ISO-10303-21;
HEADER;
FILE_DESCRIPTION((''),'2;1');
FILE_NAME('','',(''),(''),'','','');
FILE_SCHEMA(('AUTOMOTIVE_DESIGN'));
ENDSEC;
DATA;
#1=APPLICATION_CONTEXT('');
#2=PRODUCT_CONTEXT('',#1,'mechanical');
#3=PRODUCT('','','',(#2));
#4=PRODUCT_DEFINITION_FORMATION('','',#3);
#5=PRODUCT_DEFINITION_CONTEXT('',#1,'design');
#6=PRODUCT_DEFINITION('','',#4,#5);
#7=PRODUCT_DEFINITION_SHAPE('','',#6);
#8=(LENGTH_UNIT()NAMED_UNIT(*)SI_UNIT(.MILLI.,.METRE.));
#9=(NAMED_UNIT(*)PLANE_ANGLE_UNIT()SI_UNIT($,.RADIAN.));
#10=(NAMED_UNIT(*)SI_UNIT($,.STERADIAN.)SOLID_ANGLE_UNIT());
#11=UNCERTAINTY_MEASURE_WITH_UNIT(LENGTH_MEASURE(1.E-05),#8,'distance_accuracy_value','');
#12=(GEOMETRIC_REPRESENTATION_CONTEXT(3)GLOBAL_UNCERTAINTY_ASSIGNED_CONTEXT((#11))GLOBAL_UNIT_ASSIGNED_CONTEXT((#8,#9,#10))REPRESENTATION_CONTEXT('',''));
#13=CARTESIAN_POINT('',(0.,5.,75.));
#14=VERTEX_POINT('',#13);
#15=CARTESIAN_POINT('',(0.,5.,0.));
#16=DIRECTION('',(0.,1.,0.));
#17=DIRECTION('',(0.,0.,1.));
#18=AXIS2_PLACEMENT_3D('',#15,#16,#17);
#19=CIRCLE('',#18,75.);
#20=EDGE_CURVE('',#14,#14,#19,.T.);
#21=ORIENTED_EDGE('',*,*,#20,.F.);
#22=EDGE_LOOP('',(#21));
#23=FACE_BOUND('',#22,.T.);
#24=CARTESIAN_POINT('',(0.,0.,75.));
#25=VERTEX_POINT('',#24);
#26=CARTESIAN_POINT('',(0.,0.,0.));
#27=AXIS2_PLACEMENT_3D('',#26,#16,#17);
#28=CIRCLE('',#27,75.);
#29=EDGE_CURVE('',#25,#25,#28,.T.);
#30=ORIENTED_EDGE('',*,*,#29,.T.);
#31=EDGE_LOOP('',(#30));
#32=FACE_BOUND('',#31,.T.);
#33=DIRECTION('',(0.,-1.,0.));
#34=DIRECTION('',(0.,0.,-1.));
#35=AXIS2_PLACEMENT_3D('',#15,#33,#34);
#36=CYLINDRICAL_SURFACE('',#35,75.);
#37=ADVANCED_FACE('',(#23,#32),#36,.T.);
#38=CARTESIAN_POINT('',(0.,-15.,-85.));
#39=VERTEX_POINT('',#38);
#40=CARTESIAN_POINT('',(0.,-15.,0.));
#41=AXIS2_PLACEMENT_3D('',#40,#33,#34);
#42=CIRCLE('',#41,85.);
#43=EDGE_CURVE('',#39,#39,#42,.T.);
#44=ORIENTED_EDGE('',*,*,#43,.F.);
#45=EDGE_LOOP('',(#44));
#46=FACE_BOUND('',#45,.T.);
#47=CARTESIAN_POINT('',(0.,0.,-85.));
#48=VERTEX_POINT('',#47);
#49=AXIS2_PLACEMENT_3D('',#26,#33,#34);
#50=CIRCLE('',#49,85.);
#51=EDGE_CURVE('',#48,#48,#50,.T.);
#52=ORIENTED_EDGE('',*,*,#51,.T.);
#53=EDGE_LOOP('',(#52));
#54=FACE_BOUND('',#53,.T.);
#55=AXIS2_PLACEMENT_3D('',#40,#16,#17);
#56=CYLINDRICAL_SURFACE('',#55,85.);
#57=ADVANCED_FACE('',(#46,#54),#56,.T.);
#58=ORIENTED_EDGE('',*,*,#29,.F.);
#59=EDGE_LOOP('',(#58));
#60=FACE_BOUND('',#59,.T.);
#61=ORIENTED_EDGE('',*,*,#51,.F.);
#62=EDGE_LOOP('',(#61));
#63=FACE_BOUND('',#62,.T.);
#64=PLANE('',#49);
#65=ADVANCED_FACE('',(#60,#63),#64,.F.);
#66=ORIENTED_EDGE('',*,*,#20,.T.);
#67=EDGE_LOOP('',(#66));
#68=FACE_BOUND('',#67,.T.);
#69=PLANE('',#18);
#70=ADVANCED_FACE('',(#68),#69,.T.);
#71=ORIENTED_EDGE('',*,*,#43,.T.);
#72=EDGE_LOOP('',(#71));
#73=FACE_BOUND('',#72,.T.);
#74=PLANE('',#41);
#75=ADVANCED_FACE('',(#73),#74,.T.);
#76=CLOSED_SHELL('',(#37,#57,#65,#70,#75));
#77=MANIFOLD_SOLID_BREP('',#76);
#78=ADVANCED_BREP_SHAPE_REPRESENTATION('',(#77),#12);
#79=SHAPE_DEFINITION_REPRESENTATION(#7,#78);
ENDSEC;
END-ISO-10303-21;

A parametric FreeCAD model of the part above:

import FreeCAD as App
import Part
import Sketcher

V = App.Vector

doc = App.newDocument("Part")
body = doc.addObject("PartDesign::Body", "Body")

sketch1 = body.newObject("Sketcher::SketchObject", "Sketch")
sketch1.AttachmentSupport = (doc.getObject("XZ_Plane"), [""])
sketch1.MapMode = "FlatFace"
sketch1.addGeometry(Part.Circle(V(0, 0, 0), V(0, 0, 1), 75), False)
sketch1.addConstraint([
    Sketcher.Constraint("Coincident", 0, 3, -1, 1),
    Sketcher.Constraint("Diameter", 0, 150.0),
])
pad1 = body.newObject("PartDesign::Pad", "Pad")
pad1.Profile = sketch1
pad1.Length = 5
pad1.Reversed = True

sketch2 = body.newObject("Sketcher::SketchObject", "Sketch001")
sketch2.AttachmentSupport = (doc.getObject("XZ_Plane"), [""])
sketch2.MapMode = "FlatFace"
sketch2.addGeometry(Part.Circle(V(0, 0, 0), V(0, 0, 1), 85), False)
sketch2.addConstraint([
    Sketcher.Constraint("Coincident", 0, 3, -1, 1),
    Sketcher.Constraint("Diameter", 0, 170.0),
])
pad2 = body.newObject("PartDesign::Pad", "Pad001")
pad2.Profile = sketch2
pad2.Length = 15

doc.recompute()
